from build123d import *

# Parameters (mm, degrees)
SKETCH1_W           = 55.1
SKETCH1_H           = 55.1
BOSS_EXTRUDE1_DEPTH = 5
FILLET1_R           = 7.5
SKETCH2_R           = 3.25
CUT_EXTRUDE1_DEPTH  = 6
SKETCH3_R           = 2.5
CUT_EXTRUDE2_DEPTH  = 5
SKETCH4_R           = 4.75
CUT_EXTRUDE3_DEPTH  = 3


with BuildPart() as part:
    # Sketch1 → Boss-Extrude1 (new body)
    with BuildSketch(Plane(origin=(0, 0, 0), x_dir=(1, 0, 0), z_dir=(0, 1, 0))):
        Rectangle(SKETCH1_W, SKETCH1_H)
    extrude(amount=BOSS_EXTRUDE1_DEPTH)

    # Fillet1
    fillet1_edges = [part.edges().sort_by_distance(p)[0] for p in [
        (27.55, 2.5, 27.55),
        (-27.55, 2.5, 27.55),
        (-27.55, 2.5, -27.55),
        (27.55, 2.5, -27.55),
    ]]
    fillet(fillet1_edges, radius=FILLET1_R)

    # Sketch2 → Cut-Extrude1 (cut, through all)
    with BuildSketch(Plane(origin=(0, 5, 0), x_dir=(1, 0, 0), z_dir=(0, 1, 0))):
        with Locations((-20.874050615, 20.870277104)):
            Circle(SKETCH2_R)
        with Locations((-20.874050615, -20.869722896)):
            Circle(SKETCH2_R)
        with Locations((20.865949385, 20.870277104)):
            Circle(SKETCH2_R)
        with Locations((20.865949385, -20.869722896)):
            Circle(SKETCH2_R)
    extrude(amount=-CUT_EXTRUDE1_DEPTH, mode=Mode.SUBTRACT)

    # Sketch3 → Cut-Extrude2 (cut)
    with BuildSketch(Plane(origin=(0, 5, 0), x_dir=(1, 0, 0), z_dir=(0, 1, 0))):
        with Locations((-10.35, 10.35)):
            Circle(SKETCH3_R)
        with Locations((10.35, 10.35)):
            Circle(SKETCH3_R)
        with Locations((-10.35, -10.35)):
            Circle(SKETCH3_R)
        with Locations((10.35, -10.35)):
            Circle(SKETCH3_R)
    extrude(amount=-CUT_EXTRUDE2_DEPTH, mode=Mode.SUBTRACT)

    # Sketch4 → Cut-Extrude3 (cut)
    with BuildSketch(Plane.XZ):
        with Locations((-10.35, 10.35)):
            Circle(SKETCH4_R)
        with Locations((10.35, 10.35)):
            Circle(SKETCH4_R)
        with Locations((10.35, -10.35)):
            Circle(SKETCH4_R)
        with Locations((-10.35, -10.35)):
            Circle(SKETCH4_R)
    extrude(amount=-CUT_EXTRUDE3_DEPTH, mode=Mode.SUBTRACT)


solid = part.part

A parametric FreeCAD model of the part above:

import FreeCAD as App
import Part
import Sketcher

V = App.Vector


def edges_at(feature, points):
    """Names of the edges that pass closest to the given points."""
    edges = feature.Shape.Edges
    near = lambda p: min(range(len(edges)), key=lambda i: edges[i].distToShape(Part.Vertex(*p))[0])
    return sorted({f"Edge{near(p) + 1}" for p in points})


def add_polygon(sketch, points):
    """Adds a closed chain of lines whose ends are joined by coincident constraints."""
    first, n = sketch.GeometryCount, len(points)
    for a, b in zip(points, points[1:] + points[:1]):
        sketch.addGeometry(Part.LineSegment(App.Vector(*a, 0), App.Vector(*b, 0)), False)
    for i in range(n):
        sketch.addConstraint(Sketcher.Constraint("Coincident", first + i, 2, first + (i + 1) % n, 1))

doc = App.newDocument("Part")
params = doc.addObject("Spreadsheet::Sheet", "Params")
for row, (alias, value) in enumerate([
    ("sketch1_width", "55.1 mm"),
    ("pad1_length", "5 mm"),
    ("fillet_radius", "7.5 mm"),
    ("sketch2_diameter", "6.5 mm"),
    ("sketch3_diameter", "5 mm"),
    ("pocket2_length", "5 mm"),
    ("sketch4_diameter", "9.5 mm"),
    ("pocket3_length", "3 mm"),
], start=1):
    params.set(f"A{row}", alias)
    params.set(f"B{row}", "=" + value)
    params.setAlias(f"B{row}", alias)

body = doc.addObject("PartDesign::Body", "Body")

sketch1 = body.newObject("Sketcher::SketchObject", "Sketch")
sketch1.AttachmentSupport = (doc.getObject("XZ_Plane"), [""])
sketch1.MapMode = "FlatFace"
add_polygon(sketch1, [(-28, -28), (-28, 28), (28, 28), (28, -28)])
sketch1.addConstraint([
    Sketcher.Constraint("Vertical", 0),
    Sketcher.Constraint("Horizontal", 1),
    Sketcher.Constraint("Vertical", 2),
    Sketcher.Constraint("Horizontal", 3),
    Sketcher.Constraint("Symmetric", 0, 2, 2, 2, -1, 1),
    Sketcher.Constraint("Equal", 3, 0),
    Sketcher.Constraint("DistanceX", 1, 1, 1, 2, 55.1),
])
sketch1.setExpression("Constraints[10]", "Params.sketch1_width")
pad1 = body.newObject("PartDesign::Pad", "Pad")
pad1.Profile = sketch1
pad1.setExpression("Length", "Params.pad1_length")
pad1.Reversed = True
doc.recompute()

fillet = body.newObject("PartDesign::Fillet", "Fillet")
fillet.Base = (pad1, edges_at(pad1, [
    (27.55, 2.5, 27.55),
    (-27.55, 2.5, 27.55),
    (-27.55, 2.5, -27.55),
    (27.55, 2.5, -27.55),
]))
fillet.setExpression("Radius", "Params.fillet_radius")

sketch2 = body.newObject("Sketcher::SketchObject", "Sketch001")
sketch2.AttachmentSupport = (doc.getObject("XZ_Plane"), [""])
sketch2.MapMode = "FlatFace"
sketch2.AttachmentOffset = App.Placement(V(0, 0, -5), App.Rotation())
sketch2.addGeometry([
    Part.Circle(V(-20.9, -20.9, 0), V(0, 0, 1), 3.2),
    Part.Circle(V(-20.9, 20.9, 0), V(0, 0, 1), 3.2),
    Part.Circle(V(20.9, -20.9, 0), V(0, 0, 1), 3.2),
    Part.Circle(V(20.9, 20.9, 0), V(0, 0, 1), 3.2),
], False)
sketch2.addConstraint([
    Sketcher.Constraint("Equal", 0, 1),
    Sketcher.Constraint("Equal", 1, 2),
    Sketcher.Constraint("Equal", 2, 3),
    Sketcher.Constraint("Horizontal", 0, 3, 2, 3),
    Sketcher.Constraint("Horizontal", 1, 3, 3, 3),
    Sketcher.Constraint("Vertical", 0, 3, 1, 3),
    Sketcher.Constraint("Vertical", 2, 3, 3, 3),
    Sketcher.Constraint("Diameter", 0, 6.5),
    Sketcher.Constraint("DistanceY", 0, 3, 1, 3, 41.74),
    Sketcher.Constraint("DistanceX", 0, 3, 2, 3, 41.74),
    Sketcher.Constraint("DistanceX", 0, 3, -1, 1, 20.874051),
    Sketcher.Constraint("DistanceY", 0, 3, -1, 1, 20.870277),
])
sketch2.setExpression("Constraints[7]", "Params.sketch2_diameter")
pocket1 = body.newObject("PartDesign::Pocket", "Pocket")
pocket1.Profile = sketch2
pocket1.Type = "ThroughAll"
pocket1.Reversed = True

sketch3 = body.newObject("Sketcher::SketchObject", "Sketch002")
sketch3.AttachmentSupport = (doc.getObject("XZ_Plane"), [""])
sketch3.MapMode = "FlatFace"
sketch3.AttachmentOffset = App.Placement(V(0, 0, -5), App.Rotation())
sketch3.addGeometry([
    Part.Circle(V(-10.3, -10.3, 0), V(0, 0, 1), 2.5),
    Part.Circle(V(10.3, -10.3, 0), V(0, 0, 1), 2.5),
    Part.Circle(V(-10.3, 10.3, 0), V(0, 0, 1), 2.5),
    Part.Circle(V(10.3, 10.3, 0), V(0, 0, 1), 2.5),
], False)
sketch3.addConstraint([
    Sketcher.Constraint("Equal", 0, 1),
    Sketcher.Constraint("Equal", 1, 2),
    Sketcher.Constraint("Equal", 2, 3),
    Sketcher.Constraint("Symmetric", 1, 3, 2, 3, -1, 1),
    Sketcher.Constraint("Symmetric", 0, 3, 3, 3, -1, 1),
    Sketcher.Constraint("Symmetric", 0, 3, 1, 3, -2),
    Sketcher.Constraint("Diameter", 0, 5.0),
    Sketcher.Constraint("DistanceX", 0, 3, 1, 3, 20.7),
    Sketcher.Constraint("DistanceY", 0, 3, 2, 3, 20.7),
])
sketch3.setExpression("Constraints[6]", "Params.sketch3_diameter")
pocket2 = body.newObject("PartDesign::Pocket", "Pocket001")
pocket2.Profile = sketch3
pocket2.setExpression("Length", "Params.pocket2_length")
pocket2.Reversed = True

sketch4 = body.newObject("Sketcher::SketchObject", "Sketch003")
sketch4.AttachmentSupport = (doc.getObject("XZ_Plane"), [""])
sketch4.MapMode = "FlatFace"
sketch4.addGeometry([
    Part.Circle(V(-10.3, 10.3, 0), V(0, 0, 1), 4.8),
    Part.Circle(V(10.3, 10.3, 0), V(0, 0, 1), 4.8),
    Part.Circle(V(10.3, -10.3, 0), V(0, 0, 1), 4.8),
    Part.Circle(V(-10.3, -10.3, 0), V(0, 0, 1), 4.8),
], False)
sketch4.addConstraint([
    Sketcher.Constraint("Equal", 0, 1),
    Sketcher.Constraint("Equal", 1, 2),
    Sketcher.Constraint("Equal", 2, 3),
    Sketcher.Constraint("Symmetric", 0, 3, 2, 3, -1, 1),
    Sketcher.Constraint("Symmetric", 1, 3, 3, 3, -1, 1),
    Sketcher.Constraint("Symmetric", 0, 3, 1, 3, -2),
    Sketcher.Constraint("Diameter", 0, 9.5),
    Sketcher.Constraint("DistanceX", 0, 3, 1, 3, 20.7),
    Sketcher.Constraint("DistanceY", 2, 3, 1, 3, 20.7),
])
sketch4.setExpression("Constraints[6]", "Params.sketch4_diameter")
pocket3 = body.newObject("PartDesign::Pocket", "Pocket002")
pocket3.Profile = sketch4
pocket3.setExpression("Length", "Params.pocket3_length")

doc.recompute()
